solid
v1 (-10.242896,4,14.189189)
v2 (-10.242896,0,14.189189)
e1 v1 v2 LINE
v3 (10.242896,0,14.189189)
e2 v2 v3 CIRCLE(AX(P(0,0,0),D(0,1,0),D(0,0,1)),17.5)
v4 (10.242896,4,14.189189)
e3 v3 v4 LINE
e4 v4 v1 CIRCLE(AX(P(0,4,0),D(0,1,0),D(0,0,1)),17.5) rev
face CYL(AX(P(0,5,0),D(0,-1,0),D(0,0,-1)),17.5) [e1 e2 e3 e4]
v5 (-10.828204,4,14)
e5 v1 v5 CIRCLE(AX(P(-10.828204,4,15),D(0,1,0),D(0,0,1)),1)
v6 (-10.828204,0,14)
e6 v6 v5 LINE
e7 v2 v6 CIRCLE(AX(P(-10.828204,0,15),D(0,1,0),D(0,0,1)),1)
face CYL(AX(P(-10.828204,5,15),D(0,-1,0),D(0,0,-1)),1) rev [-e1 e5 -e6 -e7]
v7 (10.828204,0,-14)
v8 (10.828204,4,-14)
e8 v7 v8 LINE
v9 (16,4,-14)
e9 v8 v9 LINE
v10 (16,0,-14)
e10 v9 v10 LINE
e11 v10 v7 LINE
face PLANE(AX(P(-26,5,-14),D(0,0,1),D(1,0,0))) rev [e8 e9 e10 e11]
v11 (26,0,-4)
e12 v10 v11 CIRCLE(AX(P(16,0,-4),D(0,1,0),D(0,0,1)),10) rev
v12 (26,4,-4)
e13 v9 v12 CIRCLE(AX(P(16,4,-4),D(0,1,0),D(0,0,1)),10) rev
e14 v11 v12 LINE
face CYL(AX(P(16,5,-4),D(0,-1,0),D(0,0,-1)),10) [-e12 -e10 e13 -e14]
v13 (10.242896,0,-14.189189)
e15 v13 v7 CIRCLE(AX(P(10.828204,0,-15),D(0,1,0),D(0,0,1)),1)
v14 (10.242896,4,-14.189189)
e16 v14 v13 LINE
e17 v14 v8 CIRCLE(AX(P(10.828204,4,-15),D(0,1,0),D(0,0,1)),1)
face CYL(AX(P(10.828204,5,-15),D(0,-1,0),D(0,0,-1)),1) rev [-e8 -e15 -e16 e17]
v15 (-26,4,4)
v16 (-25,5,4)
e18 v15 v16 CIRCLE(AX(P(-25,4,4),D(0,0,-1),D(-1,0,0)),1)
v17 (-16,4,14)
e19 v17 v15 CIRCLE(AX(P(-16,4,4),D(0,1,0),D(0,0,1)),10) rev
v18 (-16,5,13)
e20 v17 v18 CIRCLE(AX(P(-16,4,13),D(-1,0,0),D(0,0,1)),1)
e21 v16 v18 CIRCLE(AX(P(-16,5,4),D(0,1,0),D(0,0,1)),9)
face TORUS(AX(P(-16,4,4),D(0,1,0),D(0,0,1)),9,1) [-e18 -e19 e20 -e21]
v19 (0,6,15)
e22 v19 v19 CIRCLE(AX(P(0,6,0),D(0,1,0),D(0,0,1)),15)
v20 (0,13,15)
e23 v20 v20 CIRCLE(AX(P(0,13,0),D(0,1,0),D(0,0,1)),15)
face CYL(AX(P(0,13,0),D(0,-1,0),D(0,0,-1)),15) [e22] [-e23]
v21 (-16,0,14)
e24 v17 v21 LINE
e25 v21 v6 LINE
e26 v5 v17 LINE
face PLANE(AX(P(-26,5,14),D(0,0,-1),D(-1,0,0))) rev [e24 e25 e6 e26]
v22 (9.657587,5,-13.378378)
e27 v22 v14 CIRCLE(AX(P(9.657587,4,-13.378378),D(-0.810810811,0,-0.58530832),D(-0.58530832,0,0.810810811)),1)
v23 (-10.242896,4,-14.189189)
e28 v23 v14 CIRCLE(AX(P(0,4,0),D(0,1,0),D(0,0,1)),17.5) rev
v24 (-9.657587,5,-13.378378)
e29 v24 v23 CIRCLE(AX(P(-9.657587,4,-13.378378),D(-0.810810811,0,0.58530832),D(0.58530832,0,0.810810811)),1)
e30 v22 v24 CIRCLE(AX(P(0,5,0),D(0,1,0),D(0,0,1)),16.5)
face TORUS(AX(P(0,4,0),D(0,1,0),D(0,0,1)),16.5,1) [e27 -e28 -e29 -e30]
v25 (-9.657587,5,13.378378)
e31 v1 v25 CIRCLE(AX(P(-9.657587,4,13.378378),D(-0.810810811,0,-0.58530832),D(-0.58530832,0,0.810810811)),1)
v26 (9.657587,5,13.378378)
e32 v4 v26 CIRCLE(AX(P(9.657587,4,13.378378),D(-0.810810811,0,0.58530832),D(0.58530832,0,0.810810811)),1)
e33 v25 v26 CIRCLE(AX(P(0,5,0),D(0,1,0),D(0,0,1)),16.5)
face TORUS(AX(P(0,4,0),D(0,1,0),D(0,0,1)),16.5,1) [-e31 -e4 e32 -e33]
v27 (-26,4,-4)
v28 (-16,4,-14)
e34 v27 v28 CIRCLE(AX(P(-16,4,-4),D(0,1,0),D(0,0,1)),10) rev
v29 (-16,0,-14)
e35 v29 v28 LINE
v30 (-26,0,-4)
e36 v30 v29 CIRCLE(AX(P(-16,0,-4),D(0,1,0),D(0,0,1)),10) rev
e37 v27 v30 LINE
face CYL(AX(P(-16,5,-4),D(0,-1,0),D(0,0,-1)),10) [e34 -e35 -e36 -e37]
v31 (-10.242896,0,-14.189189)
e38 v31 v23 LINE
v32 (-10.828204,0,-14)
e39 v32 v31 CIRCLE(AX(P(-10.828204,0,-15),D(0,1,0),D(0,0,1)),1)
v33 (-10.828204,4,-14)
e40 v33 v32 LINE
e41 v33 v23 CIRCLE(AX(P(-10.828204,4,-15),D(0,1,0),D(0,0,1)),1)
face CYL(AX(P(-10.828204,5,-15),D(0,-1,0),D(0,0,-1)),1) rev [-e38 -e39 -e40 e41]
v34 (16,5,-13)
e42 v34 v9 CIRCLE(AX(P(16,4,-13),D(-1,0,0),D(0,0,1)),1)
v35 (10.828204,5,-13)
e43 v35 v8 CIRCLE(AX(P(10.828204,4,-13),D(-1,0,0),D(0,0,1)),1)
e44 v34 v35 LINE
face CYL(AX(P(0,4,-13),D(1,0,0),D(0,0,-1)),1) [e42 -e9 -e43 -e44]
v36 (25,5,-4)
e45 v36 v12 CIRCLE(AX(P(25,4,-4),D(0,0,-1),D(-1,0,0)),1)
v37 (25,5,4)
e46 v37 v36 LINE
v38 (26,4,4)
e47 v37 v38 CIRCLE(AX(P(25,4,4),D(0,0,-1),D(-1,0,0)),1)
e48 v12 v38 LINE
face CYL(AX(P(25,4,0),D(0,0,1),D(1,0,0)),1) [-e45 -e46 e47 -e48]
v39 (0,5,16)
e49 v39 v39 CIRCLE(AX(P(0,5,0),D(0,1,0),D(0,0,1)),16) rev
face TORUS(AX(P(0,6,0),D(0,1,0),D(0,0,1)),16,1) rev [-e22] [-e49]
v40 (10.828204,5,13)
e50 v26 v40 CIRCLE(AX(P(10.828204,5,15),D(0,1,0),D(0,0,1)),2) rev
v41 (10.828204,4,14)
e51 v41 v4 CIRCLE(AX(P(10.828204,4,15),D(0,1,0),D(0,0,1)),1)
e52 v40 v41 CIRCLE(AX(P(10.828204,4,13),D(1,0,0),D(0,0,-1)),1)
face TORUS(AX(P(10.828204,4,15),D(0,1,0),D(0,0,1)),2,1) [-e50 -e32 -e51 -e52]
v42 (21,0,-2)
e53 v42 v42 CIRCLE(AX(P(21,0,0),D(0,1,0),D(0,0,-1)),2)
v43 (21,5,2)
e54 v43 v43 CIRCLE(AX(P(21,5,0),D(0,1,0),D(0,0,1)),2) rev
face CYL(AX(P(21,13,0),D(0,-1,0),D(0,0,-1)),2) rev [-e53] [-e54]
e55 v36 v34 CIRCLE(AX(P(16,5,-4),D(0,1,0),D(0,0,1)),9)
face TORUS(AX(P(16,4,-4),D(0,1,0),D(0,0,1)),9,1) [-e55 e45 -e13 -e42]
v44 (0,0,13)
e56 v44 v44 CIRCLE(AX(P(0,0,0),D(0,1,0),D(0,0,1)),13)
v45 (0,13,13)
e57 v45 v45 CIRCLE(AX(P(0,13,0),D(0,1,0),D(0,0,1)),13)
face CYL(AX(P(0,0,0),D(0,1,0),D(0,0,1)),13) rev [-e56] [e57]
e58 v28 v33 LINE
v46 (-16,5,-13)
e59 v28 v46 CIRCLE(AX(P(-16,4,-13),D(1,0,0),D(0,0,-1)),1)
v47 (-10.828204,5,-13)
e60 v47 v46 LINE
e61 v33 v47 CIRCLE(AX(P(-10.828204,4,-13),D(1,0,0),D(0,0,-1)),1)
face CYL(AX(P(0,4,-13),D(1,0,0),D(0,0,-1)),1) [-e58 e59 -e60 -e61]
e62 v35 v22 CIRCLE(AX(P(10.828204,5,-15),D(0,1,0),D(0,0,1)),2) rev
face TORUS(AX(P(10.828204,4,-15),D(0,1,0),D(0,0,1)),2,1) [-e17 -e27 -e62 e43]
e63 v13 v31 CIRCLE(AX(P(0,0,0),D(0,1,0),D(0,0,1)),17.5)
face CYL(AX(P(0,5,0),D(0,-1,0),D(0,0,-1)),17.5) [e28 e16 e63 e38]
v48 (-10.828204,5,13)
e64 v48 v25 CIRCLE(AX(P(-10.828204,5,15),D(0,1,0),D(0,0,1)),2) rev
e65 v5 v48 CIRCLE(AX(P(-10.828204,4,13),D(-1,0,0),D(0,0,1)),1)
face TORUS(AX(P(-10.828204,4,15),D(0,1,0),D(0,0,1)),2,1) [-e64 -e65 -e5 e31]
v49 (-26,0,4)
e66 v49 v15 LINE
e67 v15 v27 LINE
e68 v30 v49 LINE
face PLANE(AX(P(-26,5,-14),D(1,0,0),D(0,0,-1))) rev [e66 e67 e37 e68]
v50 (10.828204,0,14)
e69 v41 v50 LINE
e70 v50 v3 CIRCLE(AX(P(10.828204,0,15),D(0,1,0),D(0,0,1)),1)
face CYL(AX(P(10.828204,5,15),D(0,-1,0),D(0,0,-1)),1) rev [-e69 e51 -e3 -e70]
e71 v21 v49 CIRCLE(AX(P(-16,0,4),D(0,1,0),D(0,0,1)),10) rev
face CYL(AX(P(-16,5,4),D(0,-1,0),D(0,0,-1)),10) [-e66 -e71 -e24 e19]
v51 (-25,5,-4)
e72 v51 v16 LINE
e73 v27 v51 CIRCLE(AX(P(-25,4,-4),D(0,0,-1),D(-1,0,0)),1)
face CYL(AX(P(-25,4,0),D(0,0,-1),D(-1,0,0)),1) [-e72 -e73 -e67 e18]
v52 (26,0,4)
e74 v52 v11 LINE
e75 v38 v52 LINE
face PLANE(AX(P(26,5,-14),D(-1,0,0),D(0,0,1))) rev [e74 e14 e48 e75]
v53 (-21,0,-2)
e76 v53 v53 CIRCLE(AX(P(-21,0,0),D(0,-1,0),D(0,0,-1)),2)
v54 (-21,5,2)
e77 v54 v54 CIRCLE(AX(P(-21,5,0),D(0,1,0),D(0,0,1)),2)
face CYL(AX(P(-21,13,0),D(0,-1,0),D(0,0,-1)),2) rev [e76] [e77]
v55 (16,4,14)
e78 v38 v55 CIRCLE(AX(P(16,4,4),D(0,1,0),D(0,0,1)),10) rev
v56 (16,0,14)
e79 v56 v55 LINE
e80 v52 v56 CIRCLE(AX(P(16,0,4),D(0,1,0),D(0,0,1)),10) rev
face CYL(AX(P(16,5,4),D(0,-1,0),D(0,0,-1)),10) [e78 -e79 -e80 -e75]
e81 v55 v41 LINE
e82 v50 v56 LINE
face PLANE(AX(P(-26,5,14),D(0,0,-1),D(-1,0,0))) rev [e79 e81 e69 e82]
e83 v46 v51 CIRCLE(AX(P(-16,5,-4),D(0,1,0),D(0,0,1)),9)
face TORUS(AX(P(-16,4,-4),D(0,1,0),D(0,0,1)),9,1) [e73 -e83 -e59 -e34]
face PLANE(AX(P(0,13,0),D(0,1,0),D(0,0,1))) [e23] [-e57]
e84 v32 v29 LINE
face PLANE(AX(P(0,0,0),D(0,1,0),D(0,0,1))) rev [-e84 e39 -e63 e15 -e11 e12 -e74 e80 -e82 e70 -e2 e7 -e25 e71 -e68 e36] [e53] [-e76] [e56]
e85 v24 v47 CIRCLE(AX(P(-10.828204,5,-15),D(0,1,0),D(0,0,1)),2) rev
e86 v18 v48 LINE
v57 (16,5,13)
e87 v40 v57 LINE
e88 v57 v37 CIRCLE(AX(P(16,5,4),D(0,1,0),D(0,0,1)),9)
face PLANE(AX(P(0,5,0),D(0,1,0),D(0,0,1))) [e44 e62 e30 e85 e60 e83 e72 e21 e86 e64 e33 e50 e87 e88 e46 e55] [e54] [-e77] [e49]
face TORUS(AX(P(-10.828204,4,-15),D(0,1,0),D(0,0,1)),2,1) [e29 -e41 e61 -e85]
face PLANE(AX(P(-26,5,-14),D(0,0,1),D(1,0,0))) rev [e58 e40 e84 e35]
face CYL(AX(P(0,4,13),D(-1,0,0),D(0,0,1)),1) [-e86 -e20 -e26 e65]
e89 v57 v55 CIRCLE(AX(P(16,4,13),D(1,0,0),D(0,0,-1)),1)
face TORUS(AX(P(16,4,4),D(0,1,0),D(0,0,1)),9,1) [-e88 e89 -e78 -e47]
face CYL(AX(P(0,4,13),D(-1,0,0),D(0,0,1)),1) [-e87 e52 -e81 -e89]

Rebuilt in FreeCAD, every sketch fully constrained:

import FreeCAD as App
import Part
import Sketcher


def edges_at(feature, points):
    """Names of the edges that pass closest to the given points."""
    edges = feature.Shape.Edges
    near = lambda p: min(range(len(edges)), key=lambda i: edges[i].distToShape(Part.Vertex(*p))[0])
    return sorted({f"Edge{near(p) + 1}" for p in points})

doc = App.newDocument("Part")
body = doc.addObject("PartDesign::Body", "Body")

sketch1 = body.newObject("Sketcher::SketchObject", "Sketch")
sketch1.AttachmentSupport = (doc.getObject("XZ_Plane"), [""])
sketch1.MapMode = "FlatFace"
sketch1.addGeometry(Part.LineSegment(App.Vector(-26, -14, 0), App.Vector(-26, 14, 0)), False)
sketch1.addGeometry(Part.LineSegment(App.Vector(-26, 14, 0), App.Vector(26, 14, 0)), False)
sketch1.addGeometry(Part.LineSegment(App.Vector(26, 14, 0), App.Vector(26, -14, 0)), False)
sketch1.addGeometry(Part.LineSegment(App.Vector(26, -14, 0), App.Vector(-26, -14, 0)), False)
sketch1.addConstraint(Sketcher.Constraint("Coincident", 0, 2, 1, 1))
sketch1.addConstraint(Sketcher.Constraint("Coincident", 1, 2, 2, 1))
sketch1.addConstraint(Sketcher.Constraint("Coincident", 2, 2, 3, 1))
sketch1.addConstraint(Sketcher.Constraint("Coincident", 3, 2, 0, 1))
sketch1.addConstraint(Sketcher.Constraint("Vertical", 0))
sketch1.addConstraint(Sketcher.Constraint("Horizontal", 1))
sketch1.addConstraint(Sketcher.Constraint("Vertical", 2))
sketch1.addConstraint(Sketcher.Constraint("Horizontal", 3))
sketch1.addConstraint(Sketcher.Constraint("Symmetric", 0, 2, 2, 2, -1, 1))
sketch1.addConstraint(Sketcher.Constraint("DistanceX", 1, 1, 1, 2, 52.0))
sketch1.addConstraint(Sketcher.Constraint("DistanceY", 0, 1, 0, 2, 28.0))
pad1 = body.newObject("PartDesign::Pad", "Pad")
pad1.Profile = sketch1
pad1.Length = 5
pad1.Reversed = True

sketch2 = body.newObject("Sketcher::SketchObject", "Sketch001")
sketch2.AttachmentSupport = (doc.getObject("XZ_Plane"), [""])
sketch2.MapMode = "FlatFace"
sketch2.addGeometry(Part.Circle(App.Vector(0, 0, 0), App.Vector(0, 0, 1), 18), False)
sketch2.addConstraint(Sketcher.Constraint("Coincident", 0, 3, -1, 1))
sketch2.addConstraint(Sketcher.Constraint("Diameter", 0, 35.0))
pad2 = body.newObject("PartDesign::Pad", "Pad001")
pad2.Profile = sketch2
pad2.Length = 5
pad2.Reversed = True

sketch3 = body.newObject("Sketcher::SketchObject", "Sketch002")
sketch3.AttachmentSupport = (doc.getObject("XZ_Plane"), [""])
sketch3.MapMode = "FlatFace"
sketch3.AttachmentOffset = App.Placement(App.Vector(0, 0, -5), App.Rotation())
sketch3.addGeometry(Part.Circle(App.Vector(0, 0, 0), App.Vector(0, 0, 1), 15), False)
sketch3.addConstraint(Sketcher.Constraint("Coincident", 0, 3, -1, 1))
sketch3.addConstraint(Sketcher.Constraint("Diameter", 0, 30.0))
pad3 = body.newObject("PartDesign::Pad", "Pad002")
pad3.Profile = sketch3
pad3.Length = 8
pad3.Reversed = True

sketch4 = body.newObject("Sketcher::SketchObject", "Sketch003")
sketch4.AttachmentSupport = (doc.getObject("XZ_Plane"), [""])
sketch4.MapMode = "FlatFace"
sketch4.AttachmentOffset = App.Placement(App.Vector(0, 0, -13), App.Rotation())
sketch4.addGeometry(Part.Circle(App.Vector(0, 0, 0), App.Vector(0, 0, 1), 13), False)
sketch4.addConstraint(Sketcher.Constraint("Coincident", 0, 3, -1, 1))
sketch4.addConstraint(Sketcher.Constraint("Diameter", 0, 26.0))
pocket1 = body.newObject("PartDesign::Pocket", "Pocket")
pocket1.Profile = sketch4
pocket1.Type = "ThroughAll"
pocket1.Reversed = True
doc.recompute()

fillet = body.newObject("PartDesign::Fillet", "Fillet")
fillet.Base = (pocket1, edges_at(pocket1, [
    (-26, 2.5, -14),
    (26, 2.5, -14),
    (26, 2.5, 14),
    (-26, 2.5, 14),
]))
fillet.Radius = 10

sketch5 = body.newObject("Sketcher::SketchObject", "Sketch004")
sketch5.AttachmentSupport = (doc.getObject("XZ_Plane"), [""])
sketch5.MapMode = "FlatFace"
sketch5.addGeometry(Part.Circle(App.Vector(-21, 0, 0), App.Vector(0, 0, 1), 2), False)
sketch5.addConstraint(Sketcher.Constraint("PointOnObject", 0, 3, -1))
sketch5.addConstraint(Sketcher.Constraint("Diameter", 0, 4.0))
sketch5.addConstraint(Sketcher.Constraint("DistanceX", 0, 3, -1, 1, 21.0))
pocket2 = body.newObject("PartDesign::Pocket", "Pocket001")
pocket2.Profile = sketch5
pocket2.Type = "ThroughAll"
doc.recompute()

mirrored = body.newObject("PartDesign::Mirrored", "Mirrored")
mirrored.Originals = [pocket2]
mirrored.MirrorPlane = (doc.getObject("YZ_Plane"), [""])
body.Tip = mirrored
doc.recompute()

fillet2 = body.newObject("PartDesign::Fillet", "Fillet001")
fillet2.Base = (mirrored, edges_at(mirrored, [(0, 5, -15)]))
fillet2.Radius = 1
doc.recompute()

fillet3 = body.newObject("PartDesign::Fillet", "Fillet002")
fillet3.Base = (fillet2, edges_at(fillet2, [
    (10.5, 2.5, 14),
    (-10.5, 2.5, 14),
    (-10.5, 2.5, -14),
    (10.5, 2.5, -14),
]))
fillet3.Radius = 1
doc.recompute()

fillet4 = body.newObject("PartDesign::Fillet", "Fillet003")
fillet4.Base = (fillet3, edges_at(fillet3, [
    (13.414, 5, -14),
    (26, 5, 0),
    (-26, 5, 0),
    (-13.414, 5, 14),
    (-23.071, 5, -11.071),
    (-23.071, 5, 11.071),
    (23.071, 5, 11.071),
    (23.071, 5, -11.071),
    (0, 5, -17.5),
    (-13.414, 5, -14),
    (0, 5, 17.5),
    (13.414, 5, 14),
    (10.521, 5, -14.048),
    (-10.521, 5, -14.048),
    (-10.521, 5, 14.048),
    (10.521, 5, 14.048),
]))
fillet4.Radius = 1

doc.recompute()
